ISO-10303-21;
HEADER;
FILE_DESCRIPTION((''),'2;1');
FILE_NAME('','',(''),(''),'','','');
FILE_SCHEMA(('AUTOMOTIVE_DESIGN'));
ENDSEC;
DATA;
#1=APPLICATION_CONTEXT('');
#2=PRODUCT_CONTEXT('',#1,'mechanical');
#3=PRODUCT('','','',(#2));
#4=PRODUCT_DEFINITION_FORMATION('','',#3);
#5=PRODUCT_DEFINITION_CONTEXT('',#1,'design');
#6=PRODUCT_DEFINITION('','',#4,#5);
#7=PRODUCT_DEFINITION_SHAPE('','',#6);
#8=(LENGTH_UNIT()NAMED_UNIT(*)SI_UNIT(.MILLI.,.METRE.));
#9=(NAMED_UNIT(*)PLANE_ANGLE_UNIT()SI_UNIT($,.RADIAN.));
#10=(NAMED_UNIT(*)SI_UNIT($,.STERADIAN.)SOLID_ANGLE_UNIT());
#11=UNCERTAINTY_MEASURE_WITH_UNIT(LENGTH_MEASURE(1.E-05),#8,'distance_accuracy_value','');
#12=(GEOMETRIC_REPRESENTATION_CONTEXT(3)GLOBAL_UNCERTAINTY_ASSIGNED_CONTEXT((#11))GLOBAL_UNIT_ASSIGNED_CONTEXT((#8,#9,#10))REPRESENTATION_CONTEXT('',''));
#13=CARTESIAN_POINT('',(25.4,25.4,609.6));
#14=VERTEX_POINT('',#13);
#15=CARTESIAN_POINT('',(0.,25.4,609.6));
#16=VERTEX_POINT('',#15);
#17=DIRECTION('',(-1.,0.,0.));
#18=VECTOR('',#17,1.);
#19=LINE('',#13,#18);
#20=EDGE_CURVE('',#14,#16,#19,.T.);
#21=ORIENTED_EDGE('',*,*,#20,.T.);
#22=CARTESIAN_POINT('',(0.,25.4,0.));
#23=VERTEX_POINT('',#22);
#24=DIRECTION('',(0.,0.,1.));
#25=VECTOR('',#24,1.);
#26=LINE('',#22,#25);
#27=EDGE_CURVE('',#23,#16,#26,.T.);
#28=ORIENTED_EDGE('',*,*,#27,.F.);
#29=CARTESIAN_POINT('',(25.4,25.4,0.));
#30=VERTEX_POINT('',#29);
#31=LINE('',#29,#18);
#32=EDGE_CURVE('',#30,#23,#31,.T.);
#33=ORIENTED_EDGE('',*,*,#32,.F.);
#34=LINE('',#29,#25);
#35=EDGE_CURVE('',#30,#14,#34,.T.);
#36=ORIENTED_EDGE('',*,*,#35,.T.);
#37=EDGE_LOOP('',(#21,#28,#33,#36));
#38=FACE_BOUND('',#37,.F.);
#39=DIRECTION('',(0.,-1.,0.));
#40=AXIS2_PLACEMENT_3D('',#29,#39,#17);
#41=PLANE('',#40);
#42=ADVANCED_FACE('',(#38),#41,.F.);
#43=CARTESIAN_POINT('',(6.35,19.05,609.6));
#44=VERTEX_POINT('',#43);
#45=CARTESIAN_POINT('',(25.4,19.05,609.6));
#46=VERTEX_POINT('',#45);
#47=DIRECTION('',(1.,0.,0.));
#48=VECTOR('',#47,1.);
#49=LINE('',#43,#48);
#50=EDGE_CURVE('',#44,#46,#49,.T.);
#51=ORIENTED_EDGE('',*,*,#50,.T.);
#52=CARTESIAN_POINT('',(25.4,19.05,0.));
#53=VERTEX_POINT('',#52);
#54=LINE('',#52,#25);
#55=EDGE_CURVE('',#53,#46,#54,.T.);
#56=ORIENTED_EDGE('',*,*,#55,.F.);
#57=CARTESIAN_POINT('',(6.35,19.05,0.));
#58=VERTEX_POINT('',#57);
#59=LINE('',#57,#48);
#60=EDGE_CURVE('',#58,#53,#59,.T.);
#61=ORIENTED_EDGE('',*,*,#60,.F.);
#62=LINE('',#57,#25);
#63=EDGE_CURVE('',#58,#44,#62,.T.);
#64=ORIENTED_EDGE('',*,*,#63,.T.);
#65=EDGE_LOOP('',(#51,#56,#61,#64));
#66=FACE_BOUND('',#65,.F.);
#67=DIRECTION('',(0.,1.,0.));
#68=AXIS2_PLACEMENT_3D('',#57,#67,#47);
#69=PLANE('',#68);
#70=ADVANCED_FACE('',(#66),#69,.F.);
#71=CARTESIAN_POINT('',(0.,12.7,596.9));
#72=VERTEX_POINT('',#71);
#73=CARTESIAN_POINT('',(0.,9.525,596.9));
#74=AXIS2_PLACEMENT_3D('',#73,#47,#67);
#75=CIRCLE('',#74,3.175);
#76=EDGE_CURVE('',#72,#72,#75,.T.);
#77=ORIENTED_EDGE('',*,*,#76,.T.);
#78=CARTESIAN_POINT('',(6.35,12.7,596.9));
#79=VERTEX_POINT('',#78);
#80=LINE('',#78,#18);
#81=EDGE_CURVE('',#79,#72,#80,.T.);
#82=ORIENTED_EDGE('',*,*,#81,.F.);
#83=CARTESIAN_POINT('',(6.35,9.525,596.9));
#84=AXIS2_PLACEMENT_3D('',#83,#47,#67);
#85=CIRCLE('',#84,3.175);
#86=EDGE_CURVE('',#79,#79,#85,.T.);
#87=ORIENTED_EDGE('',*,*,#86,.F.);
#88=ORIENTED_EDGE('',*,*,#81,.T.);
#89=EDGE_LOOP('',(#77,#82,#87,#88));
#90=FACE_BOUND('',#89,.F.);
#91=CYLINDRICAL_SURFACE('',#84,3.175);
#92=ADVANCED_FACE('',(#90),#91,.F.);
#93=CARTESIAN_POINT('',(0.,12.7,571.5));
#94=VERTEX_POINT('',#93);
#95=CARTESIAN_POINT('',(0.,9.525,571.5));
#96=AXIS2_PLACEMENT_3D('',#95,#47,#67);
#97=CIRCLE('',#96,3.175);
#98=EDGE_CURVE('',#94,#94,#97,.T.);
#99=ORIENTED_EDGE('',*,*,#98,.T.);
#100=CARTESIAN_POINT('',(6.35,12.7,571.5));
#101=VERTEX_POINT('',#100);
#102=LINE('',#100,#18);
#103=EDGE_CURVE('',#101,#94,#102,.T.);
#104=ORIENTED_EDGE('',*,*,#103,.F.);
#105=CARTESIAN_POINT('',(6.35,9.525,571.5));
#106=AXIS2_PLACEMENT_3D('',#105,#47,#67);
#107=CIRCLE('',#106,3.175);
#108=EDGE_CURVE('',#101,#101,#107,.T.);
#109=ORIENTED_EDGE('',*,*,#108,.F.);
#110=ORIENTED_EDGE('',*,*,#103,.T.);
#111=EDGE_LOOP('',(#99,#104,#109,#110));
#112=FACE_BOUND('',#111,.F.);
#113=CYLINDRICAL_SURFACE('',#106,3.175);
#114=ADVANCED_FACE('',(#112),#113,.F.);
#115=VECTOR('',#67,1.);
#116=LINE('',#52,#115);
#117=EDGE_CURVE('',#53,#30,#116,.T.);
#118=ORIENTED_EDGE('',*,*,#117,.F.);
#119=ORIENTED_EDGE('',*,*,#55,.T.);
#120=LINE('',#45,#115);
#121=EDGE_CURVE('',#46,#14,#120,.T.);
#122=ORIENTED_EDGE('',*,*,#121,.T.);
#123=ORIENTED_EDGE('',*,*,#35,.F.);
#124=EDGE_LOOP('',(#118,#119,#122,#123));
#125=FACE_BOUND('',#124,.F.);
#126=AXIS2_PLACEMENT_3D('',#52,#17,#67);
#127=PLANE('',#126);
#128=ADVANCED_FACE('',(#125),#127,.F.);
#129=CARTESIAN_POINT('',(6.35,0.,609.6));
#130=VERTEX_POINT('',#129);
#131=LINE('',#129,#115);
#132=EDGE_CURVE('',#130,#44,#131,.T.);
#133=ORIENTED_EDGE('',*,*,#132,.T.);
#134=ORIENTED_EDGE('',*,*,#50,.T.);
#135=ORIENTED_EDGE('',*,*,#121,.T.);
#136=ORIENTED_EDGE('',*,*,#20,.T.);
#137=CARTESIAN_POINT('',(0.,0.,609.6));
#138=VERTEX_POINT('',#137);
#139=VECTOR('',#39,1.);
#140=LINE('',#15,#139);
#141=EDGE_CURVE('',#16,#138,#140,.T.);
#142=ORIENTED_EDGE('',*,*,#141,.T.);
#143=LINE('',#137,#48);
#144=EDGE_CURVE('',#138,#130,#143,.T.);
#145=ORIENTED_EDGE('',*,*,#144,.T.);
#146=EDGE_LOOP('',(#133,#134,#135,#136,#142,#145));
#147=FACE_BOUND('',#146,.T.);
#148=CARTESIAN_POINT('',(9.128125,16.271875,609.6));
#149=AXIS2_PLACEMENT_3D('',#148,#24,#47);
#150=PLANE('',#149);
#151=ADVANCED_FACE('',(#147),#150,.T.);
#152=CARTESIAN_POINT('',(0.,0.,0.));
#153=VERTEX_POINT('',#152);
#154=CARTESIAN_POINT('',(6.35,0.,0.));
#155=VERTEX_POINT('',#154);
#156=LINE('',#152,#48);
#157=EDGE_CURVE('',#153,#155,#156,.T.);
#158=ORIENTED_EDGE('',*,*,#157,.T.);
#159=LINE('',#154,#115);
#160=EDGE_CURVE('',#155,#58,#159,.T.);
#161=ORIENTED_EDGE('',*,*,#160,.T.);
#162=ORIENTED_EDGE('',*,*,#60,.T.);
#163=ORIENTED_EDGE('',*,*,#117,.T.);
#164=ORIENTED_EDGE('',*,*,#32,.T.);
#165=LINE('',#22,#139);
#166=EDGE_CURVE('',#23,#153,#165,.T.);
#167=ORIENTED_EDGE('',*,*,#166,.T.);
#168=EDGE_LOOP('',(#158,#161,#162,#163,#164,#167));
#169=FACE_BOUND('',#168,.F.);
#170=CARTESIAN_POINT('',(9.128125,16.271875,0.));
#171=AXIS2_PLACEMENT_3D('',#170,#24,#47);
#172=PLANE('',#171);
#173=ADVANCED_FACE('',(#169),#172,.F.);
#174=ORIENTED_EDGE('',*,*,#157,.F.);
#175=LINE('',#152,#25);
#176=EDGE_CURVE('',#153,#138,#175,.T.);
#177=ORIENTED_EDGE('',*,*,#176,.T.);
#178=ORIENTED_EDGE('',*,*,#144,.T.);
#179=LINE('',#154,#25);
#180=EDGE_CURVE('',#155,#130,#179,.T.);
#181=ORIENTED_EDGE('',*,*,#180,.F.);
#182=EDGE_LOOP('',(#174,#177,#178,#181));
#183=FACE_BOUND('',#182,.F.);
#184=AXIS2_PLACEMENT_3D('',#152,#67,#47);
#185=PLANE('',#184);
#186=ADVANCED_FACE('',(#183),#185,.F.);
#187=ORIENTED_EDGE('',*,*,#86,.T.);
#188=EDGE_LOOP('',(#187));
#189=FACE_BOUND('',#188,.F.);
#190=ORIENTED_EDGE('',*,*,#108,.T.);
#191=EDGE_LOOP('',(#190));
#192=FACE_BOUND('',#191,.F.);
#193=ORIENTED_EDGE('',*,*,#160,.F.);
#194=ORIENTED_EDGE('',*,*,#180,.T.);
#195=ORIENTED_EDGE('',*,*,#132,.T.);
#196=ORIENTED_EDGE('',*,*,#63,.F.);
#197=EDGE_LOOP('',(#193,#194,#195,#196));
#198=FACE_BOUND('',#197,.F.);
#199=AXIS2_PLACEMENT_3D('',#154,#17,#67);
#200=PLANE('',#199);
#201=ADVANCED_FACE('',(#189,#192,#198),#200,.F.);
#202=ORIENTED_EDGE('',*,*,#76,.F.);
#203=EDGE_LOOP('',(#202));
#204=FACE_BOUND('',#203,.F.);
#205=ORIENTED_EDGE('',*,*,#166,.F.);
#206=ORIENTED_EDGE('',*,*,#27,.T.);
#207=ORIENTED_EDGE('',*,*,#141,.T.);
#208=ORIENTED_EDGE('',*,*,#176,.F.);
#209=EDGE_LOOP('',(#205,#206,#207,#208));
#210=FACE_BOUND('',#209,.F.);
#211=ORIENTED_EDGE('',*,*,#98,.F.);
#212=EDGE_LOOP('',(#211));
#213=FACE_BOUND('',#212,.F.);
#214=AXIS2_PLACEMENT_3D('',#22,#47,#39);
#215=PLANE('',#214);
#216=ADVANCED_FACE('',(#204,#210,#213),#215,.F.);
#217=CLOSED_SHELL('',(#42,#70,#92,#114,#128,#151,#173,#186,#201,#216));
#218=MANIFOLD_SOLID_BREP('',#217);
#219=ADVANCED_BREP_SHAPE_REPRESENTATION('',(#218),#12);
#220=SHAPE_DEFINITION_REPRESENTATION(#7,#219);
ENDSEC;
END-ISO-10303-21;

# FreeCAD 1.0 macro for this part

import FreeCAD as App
import Part
import Sketcher
from FreeCAD import Vector
Q = App.Units.Quantity

doc = App.newDocument("Part")
body = doc.addObject("PartDesign::Body", "Body")

# Sketch on XY plane
sketch1 = body.newObject("Sketcher::SketchObject", "Sketch")
sketch1.AttachmentSupport = (doc.getObject("XY_Plane"), [""])
sketch1.MapMode = "FlatFace"
sketch1.addGeometry([
    Part.LineSegment(Vector(0, 25, 0), Vector(0, 0, 0)),  # 0
    Part.LineSegment(Vector(0, 0, 0), Vector(6, 0, 0)),  # 1
    Part.LineSegment(Vector(6, 0, 0), Vector(6, 19, 0)),  # 2
    Part.LineSegment(Vector(6, 19, 0), Vector(25, 19, 0)),  # 3
    Part.LineSegment(Vector(25, 19, 0), Vector(25, 25, 0)),  # 4
    Part.LineSegment(Vector(25, 25, 0), Vector(0, 25, 0)),  # 5
], False)
sketch1.addConstraint([
    Sketcher.Constraint("Coincident", 0, 2, 1, 1),
    Sketcher.Constraint("Coincident", 1, 2, 2, 1),
    Sketcher.Constraint("Coincident", 2, 2, 3, 1),
    Sketcher.Constraint("Coincident", 3, 2, 4, 1),
    Sketcher.Constraint("Coincident", 4, 2, 5, 1),
    Sketcher.Constraint("Coincident", 5, 2, 0, 1),
    Sketcher.Constraint("Vertical", 0),
    Sketcher.Constraint("Horizontal", 1),
    Sketcher.Constraint("Vertical", 2),
    Sketcher.Constraint("Horizontal", 3),
    Sketcher.Constraint("Vertical", 4),
    Sketcher.Constraint("Horizontal", 5),
    Sketcher.Constraint("Coincident", 0, 2, -1, 1),
    Sketcher.Constraint("Equal", 5, 0),
    Sketcher.Constraint("Equal", 3, 2),
    Sketcher.Constraint("DistanceX", 5, 2, 5, 1, Q("1 in")),
    Sketcher.Constraint("DistanceX", 1, 1, 1, 2, Q("0.25 in")),
])
pad1 = body.newObject("PartDesign::Pad", "Pad")
pad1.Profile = sketch1
pad1.Length = Q("24 in")

# Sketch on YZ plane
sketch2 = body.newObject("Sketcher::SketchObject", "Sketch001")
sketch2.AttachmentSupport = (doc.getObject("YZ_Plane"), [""])
sketch2.MapMode = "FlatFace"
sketch2.AttachmentOffset = App.Placement(Vector(0, 0, 0.25 * 25.4), App.Rotation())
sketch2.addGeometry([
    Part.Circle(Vector(9.5, 596.9, 0), Vector(0, 0, 1), 3.2),
    Part.Circle(Vector(9.5, 571.5, 0), Vector(0, 0, 1), 3.2),
], False)
sketch2.addConstraint([
    Sketcher.Constraint("Equal", 0, 1),
    Sketcher.Constraint("Vertical", 0, 3, 1, 3),
    Sketcher.Constraint("Diameter", 0, Q("0.25 in")),
    Sketcher.Constraint("DistanceY", 1, 3, 0, 3, Q("1 in")),
    Sketcher.Constraint("DistanceY", -1, 1, 0, 3, Q("23.5 in")),
    Sketcher.Constraint("DistanceX", -1, 1, 0, 3, Q("0.375 in")),
])
pocket1 = body.newObject("PartDesign::Pocket", "Pocket")
pocket1.Profile = sketch2
pocket1.Length = Q("1 in")

doc.recompute()
